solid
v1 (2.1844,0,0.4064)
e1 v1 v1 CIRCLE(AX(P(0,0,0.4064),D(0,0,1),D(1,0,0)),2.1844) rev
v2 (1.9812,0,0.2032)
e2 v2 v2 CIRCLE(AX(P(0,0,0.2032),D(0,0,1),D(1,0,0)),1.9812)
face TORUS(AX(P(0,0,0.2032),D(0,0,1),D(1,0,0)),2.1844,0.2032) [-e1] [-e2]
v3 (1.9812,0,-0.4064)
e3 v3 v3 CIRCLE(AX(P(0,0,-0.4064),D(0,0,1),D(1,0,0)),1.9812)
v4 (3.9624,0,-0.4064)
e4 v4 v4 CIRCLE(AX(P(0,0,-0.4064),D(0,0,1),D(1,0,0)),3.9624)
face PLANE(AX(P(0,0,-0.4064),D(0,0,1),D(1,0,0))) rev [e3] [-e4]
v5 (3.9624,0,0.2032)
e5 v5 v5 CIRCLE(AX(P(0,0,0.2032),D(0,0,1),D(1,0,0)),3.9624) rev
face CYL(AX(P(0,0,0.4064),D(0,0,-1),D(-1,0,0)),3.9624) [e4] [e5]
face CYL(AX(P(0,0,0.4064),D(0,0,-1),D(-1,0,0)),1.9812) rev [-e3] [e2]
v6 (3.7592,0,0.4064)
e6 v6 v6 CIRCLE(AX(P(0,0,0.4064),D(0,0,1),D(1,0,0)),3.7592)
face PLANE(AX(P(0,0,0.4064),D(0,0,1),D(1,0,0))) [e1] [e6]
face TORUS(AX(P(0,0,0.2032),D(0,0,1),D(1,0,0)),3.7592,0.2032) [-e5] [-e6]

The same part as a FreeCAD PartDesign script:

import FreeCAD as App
import Part
import Sketcher
from FreeCAD import Vector
Q = App.Units.Quantity


def edges_at(feature, points):
    """Names of the edges that pass closest to the given points."""
    edges = feature.Shape.Edges
    near = lambda p: min(range(len(edges)), key=lambda i: edges[i].distToShape(Part.Vertex(*p))[0])
    return sorted({f"Edge{near(p) + 1}" for p in points})

doc = App.newDocument("Part")
body = doc.addObject("PartDesign::Body", "Body")

sketch1 = body.newObject("Sketcher::SketchObject", "Sketch")
sketch1.AttachmentSupport = (doc.getObject("XY_Plane"), [""])
sketch1.MapMode = "FlatFace"
sketch1.addGeometry([
    Part.Circle(Vector(0, 0, 0), Vector(0, 0, 1), 3.9624),
    Part.Circle(Vector(0, 0, 0), Vector(0, 0, 1), 1.9812),
], False)
sketch1.addConstraint([
    Sketcher.Constraint("Coincident", 0, 3, -1, 1),
    Sketcher.Constraint("Coincident", 1, 3, -1, 1),
    Sketcher.Constraint("Diameter", 0, Q("0.312 in")),
    Sketcher.Constraint("Diameter", 1, Q("0.156 in")),
])
pad1 = body.newObject("PartDesign::Pad", "Pad")
pad1.Profile = sketch1
pad1.Type = "TwoLengths"
pad1.Length = Q("0.016 in")
pad1.Length2 = Q("0.016 in")
doc.recompute()

fillet = body.newObject("PartDesign::Fillet", "Fillet")
fillet.Base = (pad1, edges_at(pad1, [(-3.962, 0, 0.406), (-1.981, 0, 0.406)]))
fillet.Radius = Q("0.008 in")

doc.recompute()
